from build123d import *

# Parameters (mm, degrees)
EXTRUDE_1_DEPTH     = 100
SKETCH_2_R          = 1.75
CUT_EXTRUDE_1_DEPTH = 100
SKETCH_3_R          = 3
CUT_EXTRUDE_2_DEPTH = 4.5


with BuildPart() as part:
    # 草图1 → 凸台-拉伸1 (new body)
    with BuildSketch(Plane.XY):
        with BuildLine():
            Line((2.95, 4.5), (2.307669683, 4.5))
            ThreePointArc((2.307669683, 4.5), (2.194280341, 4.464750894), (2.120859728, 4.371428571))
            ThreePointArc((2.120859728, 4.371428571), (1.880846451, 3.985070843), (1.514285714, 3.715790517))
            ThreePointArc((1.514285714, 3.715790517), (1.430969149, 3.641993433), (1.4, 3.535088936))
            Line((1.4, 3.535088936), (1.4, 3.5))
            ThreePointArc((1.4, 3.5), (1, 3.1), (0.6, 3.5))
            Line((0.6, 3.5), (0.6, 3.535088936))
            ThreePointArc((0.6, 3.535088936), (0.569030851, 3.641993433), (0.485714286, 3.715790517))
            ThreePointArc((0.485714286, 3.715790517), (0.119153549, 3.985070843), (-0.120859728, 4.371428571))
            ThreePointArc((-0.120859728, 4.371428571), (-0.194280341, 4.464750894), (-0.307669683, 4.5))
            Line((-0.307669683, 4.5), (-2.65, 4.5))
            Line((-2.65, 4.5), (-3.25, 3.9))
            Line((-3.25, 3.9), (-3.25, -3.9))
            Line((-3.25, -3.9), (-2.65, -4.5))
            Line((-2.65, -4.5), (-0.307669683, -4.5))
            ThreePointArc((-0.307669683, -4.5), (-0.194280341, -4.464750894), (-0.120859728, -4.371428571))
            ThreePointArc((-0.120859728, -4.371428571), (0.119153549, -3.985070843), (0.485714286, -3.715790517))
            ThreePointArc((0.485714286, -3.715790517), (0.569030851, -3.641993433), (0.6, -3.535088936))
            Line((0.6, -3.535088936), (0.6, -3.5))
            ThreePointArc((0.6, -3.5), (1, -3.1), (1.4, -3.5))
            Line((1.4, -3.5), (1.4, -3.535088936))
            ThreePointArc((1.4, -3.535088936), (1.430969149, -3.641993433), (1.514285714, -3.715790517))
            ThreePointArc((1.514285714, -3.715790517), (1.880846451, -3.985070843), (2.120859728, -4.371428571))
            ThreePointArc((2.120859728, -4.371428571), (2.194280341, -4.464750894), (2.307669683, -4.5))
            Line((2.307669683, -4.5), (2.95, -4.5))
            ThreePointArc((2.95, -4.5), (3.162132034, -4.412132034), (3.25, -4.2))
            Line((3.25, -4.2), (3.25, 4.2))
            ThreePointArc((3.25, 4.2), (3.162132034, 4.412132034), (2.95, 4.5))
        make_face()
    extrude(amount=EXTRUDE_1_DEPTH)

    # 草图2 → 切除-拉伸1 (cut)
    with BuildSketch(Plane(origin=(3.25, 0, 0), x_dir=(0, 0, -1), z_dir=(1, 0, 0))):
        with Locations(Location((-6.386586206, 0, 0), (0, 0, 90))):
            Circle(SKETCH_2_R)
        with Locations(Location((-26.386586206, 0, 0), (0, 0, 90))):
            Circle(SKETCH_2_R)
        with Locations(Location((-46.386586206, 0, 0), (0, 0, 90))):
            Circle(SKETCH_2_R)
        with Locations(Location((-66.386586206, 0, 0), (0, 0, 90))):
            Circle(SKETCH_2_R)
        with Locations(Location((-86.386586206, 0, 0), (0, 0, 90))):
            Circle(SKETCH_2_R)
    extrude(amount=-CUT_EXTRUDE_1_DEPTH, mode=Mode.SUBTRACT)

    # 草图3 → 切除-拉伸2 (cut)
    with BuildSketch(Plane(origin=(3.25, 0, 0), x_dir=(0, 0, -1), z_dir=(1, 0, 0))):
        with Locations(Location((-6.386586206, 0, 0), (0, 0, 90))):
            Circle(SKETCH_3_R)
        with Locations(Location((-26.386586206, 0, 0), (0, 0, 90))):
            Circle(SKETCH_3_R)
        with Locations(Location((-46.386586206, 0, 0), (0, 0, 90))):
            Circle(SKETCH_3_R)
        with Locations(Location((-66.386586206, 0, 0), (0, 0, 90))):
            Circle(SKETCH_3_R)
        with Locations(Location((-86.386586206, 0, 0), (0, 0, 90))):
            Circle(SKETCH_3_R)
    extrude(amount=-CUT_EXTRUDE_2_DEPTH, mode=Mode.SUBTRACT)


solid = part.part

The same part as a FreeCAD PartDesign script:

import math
import FreeCAD as App
import Part
import Sketcher

V = App.Vector

doc = App.newDocument("Part")
params = doc.addObject("Spreadsheet::Sheet", "Params")
for row, (alias, value) in enumerate([
    ("sketch1_radius", "0.2 mm"),
    ("sketch1_radius2", "1.2 mm"),
    ("sketch1_radius3", "0.4 mm"),
    ("sketch1_radius4", "0.3 mm"),
    ("sketch1_height", "7.8 mm"),
    ("pad1_length", "100 mm"),
    ("sketch2_diameter", "3.5 mm"),
    ("pocket1_length", "100 mm"),
    ("sketch3_diameter", "6 mm"),
    ("pocket2_length", "4.5 mm"),
], start=1):
    params.set(f"A{row}", alias)
    params.set(f"B{row}", "=" + value)
    params.setAlias(f"B{row}", alias)

body = doc.addObject("PartDesign::Body", "Body")

# Sketch on XY plane
sketch1 = doc.addObject("Sketcher::SketchObject", "Sketch")
body.addObject(sketch1)
sketch1.AttachmentSupport = (doc.XY_Plane, [""])
sketch1.MapMode = "FlatFace"
sketch1.addGeometry([
    Part.LineSegment(V(2.95, 4.5, 0), V(2.30767, 4.5, 0)),  # 0
    Part.ArcOfCircle(Part.Circle(V(2.30767, 4.3, 0), V(0, 0, 1), 0.2), math.radians(90), math.radians(159.075167)),  # 1
    Part.ArcOfCircle(Part.Circle(V(1, 4.8, 0), V(0, 0, 1), 1.2), math.radians(-64.623067), math.radians(-20.924832)),  # 2
    Part.ArcOfCircle(Part.Circle(V(1.6, 3.535089, 0), V(0, 0, 1), 0.2), math.radians(115.376934), math.radians(180)),  # 3
    Part.LineSegment(V(1.4, 3.535089, 0), V(1.4, 3.5, 0)),  # 4
    Part.ArcOfCircle(Part.Circle(V(1, 3.5, 0), V(0, 0, 1), 0.4), math.radians(180), math.radians(360)),  # 5
    Part.LineSegment(V(0.6, 3.5, 0), V(0.6, 3.535089, 0)),  # 6
    Part.ArcOfCircle(Part.Circle(V(0.4, 3.535089, 0), V(0, 0, 1), 0.2), math.radians(0), math.radians(64.623066)),  # 7
    Part.ArcOfCircle(Part.Circle(V(1, 4.8, 0), V(0, 0, 1), 1.2), math.radians(-159.075168), math.radians(-115.376933)),  # 8
    Part.ArcOfCircle(Part.Circle(V(-0.30767, 4.3, 0), V(0, 0, 1), 0.2), math.radians(20.924833), math.radians(90)),  # 9
    Part.LineSegment(V(-0.30767, 4.5, 0), V(-2.65, 4.5, 0)),  # 10
    Part.LineSegment(V(-2.65, 4.5, 0), V(-3.25, 3.9, 0)),  # 11
    Part.LineSegment(V(-3.25, 3.9, 0), V(-3.25, -3.9, 0)),  # 12
    Part.LineSegment(V(-3.25, -3.9, 0), V(-2.65, -4.5, 0)),  # 13
    Part.LineSegment(V(-2.65, -4.5, 0), V(-0.30767, -4.5, 0)),  # 14
    Part.ArcOfCircle(Part.Circle(V(-0.30767, -4.3, 0), V(0, 0, 1), 0.2), math.radians(-90), math.radians(-20.924833)),  # 15
    Part.ArcOfCircle(Part.Circle(V(1, -4.8, 0), V(0, 0, 1), 1.2), math.radians(115.376933), math.radians(159.075168)),  # 16
    Part.ArcOfCircle(Part.Circle(V(0.4, -3.535089, 0), V(0, 0, 1), 0.2), math.radians(-64.623066), math.radians(0)),  # 17
    Part.LineSegment(V(0.6, -3.535089, 0), V(0.6, -3.5, 0)),  # 18
    Part.ArcOfCircle(Part.Circle(V(1, -3.5, 0), V(0, 0, 1), 0.4), math.radians(0), math.radians(180)),  # 19
    Part.LineSegment(V(1.4, -3.5, 0), V(1.4, -3.535089, 0)),  # 20
    Part.ArcOfCircle(Part.Circle(V(1.6, -3.535089, 0), V(0, 0, 1), 0.2), math.radians(180), math.radians(244.623066)),  # 21
    Part.ArcOfCircle(Part.Circle(V(1, -4.8, 0), V(0, 0, 1), 1.2), math.radians(20.924832), math.radians(64.623067)),  # 22
    Part.ArcOfCircle(Part.Circle(V(2.30767, -4.3, 0), V(0, 0, 1), 0.2), math.radians(-159.075167), math.radians(-90)),  # 23
    Part.LineSegment(V(2.30767, -4.5, 0), V(2.95, -4.5, 0)),  # 24
    Part.ArcOfCircle(Part.Circle(V(2.95, -4.2, 0), V(0, 0, 1), 0.3), math.radians(-90), math.radians(0)),  # 25
    Part.LineSegment(V(3.25, -4.2, 0), V(3.25, 4.2, 0)),  # 26
    Part.ArcOfCircle(Part.Circle(V(2.95, 4.2, 0), V(0, 0, 1), 0.3), math.radians(0), math.radians(90)),  # 27
], False)
sketch1.addConstraint([
    Sketcher.Constraint("Tangent", 0, 2, 1, 1),
    Sketcher.Constraint("Tangent", 1, 2, 2, 2),
    Sketcher.Constraint("Tangent", 2, 1, 3, 1),
    Sketcher.Constraint("Tangent", 3, 2, 4, 1),
    Sketcher.Constraint("Tangent", 4, 2, 5, 2),
    Sketcher.Constraint("Tangent", 5, 1, 6, 1),
    Sketcher.Constraint("Tangent", 6, 2, 7, 1),
    Sketcher.Constraint("Tangent", 7, 2, 8, 2),
    Sketcher.Constraint("Tangent", 8, 1, 9, 1),
    Sketcher.Constraint("Tangent", 9, 2, 10, 1),
    Sketcher.Constraint("Coincident", 10, 2, 11, 1),
    Sketcher.Constraint("Coincident", 11, 2, 12, 1),
    Sketcher.Constraint("Coincident", 12, 2, 13, 1),
    Sketcher.Constraint("Coincident", 13, 2, 14, 1),
    Sketcher.Constraint("Tangent", 14, 2, 15, 1),
    Sketcher.Constraint("Tangent", 15, 2, 16, 2),
    Sketcher.Constraint("Tangent", 16, 1, 17, 1),
    Sketcher.Constraint("Tangent", 17, 2, 18, 1),
    Sketcher.Constraint("Tangent", 18, 2, 19, 2),
    Sketcher.Constraint("Tangent", 19, 1, 20, 1),
    Sketcher.Constraint("Tangent", 20, 2, 21, 1),
    Sketcher.Constraint("Tangent", 21, 2, 22, 2),
    Sketcher.Constraint("Tangent", 22, 1, 23, 1),
    Sketcher.Constraint("Tangent", 23, 2, 24, 1),
    Sketcher.Constraint("Tangent", 24, 2, 25, 1),
    Sketcher.Constraint("Tangent", 25, 2, 26, 1),
    Sketcher.Constraint("Tangent", 26, 2, 27, 1),
    Sketcher.Constraint("Tangent", 27, 2, 0, 1),
    Sketcher.Constraint("Horizontal", 0),
    Sketcher.Constraint("Vertical", 4),
    Sketcher.Constraint("Vertical", 6),
    Sketcher.Constraint("Horizontal", 10),
    Sketcher.Constraint("Vertical", 12),
    Sketcher.Constraint("Horizontal", 14),
    Sketcher.Constraint("Vertical", 18),
    Sketcher.Constraint("Vertical", 20),
    Sketcher.Constraint("Horizontal", 24),
    Sketcher.Constraint("Vertical", 26),
    Sketcher.Constraint("Coincident", 8, 3, 2, 3),
    Sketcher.Constraint("Coincident", 22, 3, 16, 3),
    Sketcher.Constraint("Equal", 1, 3),
    Sketcher.Constraint("Equal", 3, 7),
    Sketcher.Constraint("Equal", 2, 8),
    Sketcher.Constraint("Equal", 7, 9),
    Sketcher.Constraint("Equal", 9, 15),
    Sketcher.Constraint("Equal", 8, 16),
    Sketcher.Constraint("Equal", 15, 17),
    Sketcher.Constraint("Equal", 5, 19),
    Sketcher.Constraint("Equal", 17, 21),
    Sketcher.Constraint("Equal", 16, 22),
    Sketcher.Constraint("Equal", 21, 23),
    Sketcher.Constraint("Equal", 25, 27),
    Sketcher.Constraint("Symmetric", 9, 3, 15, 3, -1),
    Sketcher.Constraint("Symmetric", 7, 3, 17, 3, -1),
    Sketcher.Constraint("Perpendicular", 11, 13),
    Sketcher.Constraint("Horizontal", 3, 3, 7, 3),
    Sketcher.Constraint("Horizontal", 1, 3, 9, 3),
    Sketcher.Constraint("Horizontal", 15, 3, 23, 3),
    Sketcher.Constraint("Vertical", 10, 2, 13, 2),
    Sketcher.Constraint("Equal", 6, 18),
    Sketcher.Constraint("Equal", 11, 13),
    Sketcher.Constraint("Radius", 1, 0.2),
    Sketcher.Constraint("Radius", 2, 1.2),
    Sketcher.Constraint("Radius", 5, 0.4),
    Sketcher.Constraint("Radius", 25, 0.3),
    Sketcher.Constraint("DistanceY", 12, 2, 12, 1, 7.8),
    Sketcher.Constraint("DistanceY", 26, 1, 26, 2, 8.4),
    Sketcher.Constraint("DistanceX", -1, 1, 2, 3, 1.0),
    Sketcher.Constraint("DistanceY", 19, 3, 5, 3, 7.0),
    Sketcher.Constraint("DistanceY", -1, 1, 2, 3, 4.8),
    Sketcher.Constraint("DistanceX", -1, 1, 25, 3, 2.95),
    Sketcher.Constraint("DistanceX", 10, 2, -1, 1, 2.65),
])
sketch1.setExpression("Constraints[61]", "Params.sketch1_radius")
sketch1.setExpression("Constraints[62]", "Params.sketch1_radius2")
sketch1.setExpression("Constraints[63]", "Params.sketch1_radius3")
sketch1.setExpression("Constraints[64]", "Params.sketch1_radius4")
sketch1.setExpression("Constraints[65]", "Params.sketch1_height")
pad1 = doc.addObject("PartDesign::Pad", "Pad")
body.addObject(pad1)
pad1.Profile = sketch1
pad1.setExpression("Length", "Params.pad1_length")

# Sketch on YZ plane
sketch2 = doc.addObject("Sketcher::SketchObject", "Sketch001")
body.addObject(sketch2)
sketch2.AttachmentSupport = (doc.YZ_Plane, [""])
sketch2.MapMode = "FlatFace"
sketch2.AttachmentOffset = App.Placement(V(0, 0, 3.25), App.Rotation())
sketch2.addGeometry([
    Part.Circle(V(0, 6.386586, 0), V(0, 0, 1), 1.75),  # 0
    Part.Circle(V(0, 26.386586, 0), V(0, 0, 1), 1.75),  # 1
    Part.Circle(V(0, 46.386586, 0), V(0, 0, 1), 1.75),  # 2
    Part.Circle(V(0, 66.386586, 0), V(0, 0, 1), 1.75),  # 3
    Part.Circle(V(0, 86.386586, 0), V(0, 0, 1), 1.75),  # 4
], False)
sketch2.addConstraint([
    Sketcher.Constraint("Equal", 0, 1),
    Sketcher.Constraint("Equal", 1, 2),
    Sketcher.Constraint("Equal", 2, 3),
    Sketcher.Constraint("Equal", 3, 4),
    Sketcher.Constraint("PointOnObject", 0, 3, -2),
    Sketcher.Constraint("PointOnObject", 1, 3, -2),
    Sketcher.Constraint("PointOnObject", 2, 3, -2),
    Sketcher.Constraint("PointOnObject", 3, 3, -2),
    Sketcher.Constraint("PointOnObject", 4, 3, -2),
    Sketcher.Constraint("Diameter", 0, 3.5),
    Sketcher.Constraint("DistanceY", 0, 3, 1, 3, 20.0),
    Sketcher.Constraint("DistanceY", 1, 3, 2, 3, 20.0),
    Sketcher.Constraint("DistanceY", 2, 3, 3, 3, 20.0),
    Sketcher.Constraint("DistanceY", 3, 3, 4, 3, 20.0),
    Sketcher.Constraint("DistanceY", -1, 1, 0, 3, 6.386586),
])
sketch2.setExpression("Constraints[9]", "Params.sketch2_diameter")
pocket1 = doc.addObject("PartDesign::Pocket", "Pocket")
body.addObject(pocket1)
pocket1.Profile = sketch2
pocket1.setExpression("Length", "Params.pocket1_length")

# Sketch on YZ plane
sketch3 = doc.addObject("Sketcher::SketchObject", "Sketch002")
body.addObject(sketch3)
sketch3.AttachmentSupport = (doc.YZ_Plane, [""])
sketch3.MapMode = "FlatFace"
sketch3.AttachmentOffset = App.Placement(V(0, 0, 3.25), App.Rotation())
sketch3.addGeometry([
    Part.Circle(V(0, 6.386586, 0), V(0, 0, 1), 3),  # 0
    Part.Circle(V(0, 26.386586, 0), V(0, 0, 1), 3),  # 1
    Part.Circle(V(0, 46.386586, 0), V(0, 0, 1), 3),  # 2
    Part.Circle(V(0, 66.386586, 0), V(0, 0, 1), 3),  # 3
    Part.Circle(V(0, 86.386586, 0), V(0, 0, 1), 3),  # 4
], False)
sketch3.addConstraint([
    Sketcher.Constraint("Equal", 0, 1),
    Sketcher.Constraint("Equal", 1, 2),
    Sketcher.Constraint("Equal", 2, 3),
    Sketcher.Constraint("Equal", 3, 4),
    Sketcher.Constraint("PointOnObject", 0, 3, -2),
    Sketcher.Constraint("PointOnObject", 1, 3, -2),
    Sketcher.Constraint("PointOnObject", 2, 3, -2),
    Sketcher.Constraint("PointOnObject", 3, 3, -2),
    Sketcher.Constraint("PointOnObject", 4, 3, -2),
    Sketcher.Constraint("Diameter", 0, 6.0),
    Sketcher.Constraint("DistanceY", 0, 3, 1, 3, 20.0),
    Sketcher.Constraint("DistanceY", 1, 3, 2, 3, 20.0),
    Sketcher.Constraint("DistanceY", 2, 3, 3, 3, 20.0),
    Sketcher.Constraint("DistanceY", 3, 3, 4, 3, 20.0),
    Sketcher.Constraint("DistanceY", -1, 1, 0, 3, 6.386586),
])
sketch3.setExpression("Constraints[9]", "Params.sketch3_diameter")
pocket2 = doc.addObject("PartDesign::Pocket", "Pocket001")
body.addObject(pocket2)
pocket2.Profile = sketch3
pocket2.setExpression("Length", "Params.pocket2_length")

doc.recompute()
